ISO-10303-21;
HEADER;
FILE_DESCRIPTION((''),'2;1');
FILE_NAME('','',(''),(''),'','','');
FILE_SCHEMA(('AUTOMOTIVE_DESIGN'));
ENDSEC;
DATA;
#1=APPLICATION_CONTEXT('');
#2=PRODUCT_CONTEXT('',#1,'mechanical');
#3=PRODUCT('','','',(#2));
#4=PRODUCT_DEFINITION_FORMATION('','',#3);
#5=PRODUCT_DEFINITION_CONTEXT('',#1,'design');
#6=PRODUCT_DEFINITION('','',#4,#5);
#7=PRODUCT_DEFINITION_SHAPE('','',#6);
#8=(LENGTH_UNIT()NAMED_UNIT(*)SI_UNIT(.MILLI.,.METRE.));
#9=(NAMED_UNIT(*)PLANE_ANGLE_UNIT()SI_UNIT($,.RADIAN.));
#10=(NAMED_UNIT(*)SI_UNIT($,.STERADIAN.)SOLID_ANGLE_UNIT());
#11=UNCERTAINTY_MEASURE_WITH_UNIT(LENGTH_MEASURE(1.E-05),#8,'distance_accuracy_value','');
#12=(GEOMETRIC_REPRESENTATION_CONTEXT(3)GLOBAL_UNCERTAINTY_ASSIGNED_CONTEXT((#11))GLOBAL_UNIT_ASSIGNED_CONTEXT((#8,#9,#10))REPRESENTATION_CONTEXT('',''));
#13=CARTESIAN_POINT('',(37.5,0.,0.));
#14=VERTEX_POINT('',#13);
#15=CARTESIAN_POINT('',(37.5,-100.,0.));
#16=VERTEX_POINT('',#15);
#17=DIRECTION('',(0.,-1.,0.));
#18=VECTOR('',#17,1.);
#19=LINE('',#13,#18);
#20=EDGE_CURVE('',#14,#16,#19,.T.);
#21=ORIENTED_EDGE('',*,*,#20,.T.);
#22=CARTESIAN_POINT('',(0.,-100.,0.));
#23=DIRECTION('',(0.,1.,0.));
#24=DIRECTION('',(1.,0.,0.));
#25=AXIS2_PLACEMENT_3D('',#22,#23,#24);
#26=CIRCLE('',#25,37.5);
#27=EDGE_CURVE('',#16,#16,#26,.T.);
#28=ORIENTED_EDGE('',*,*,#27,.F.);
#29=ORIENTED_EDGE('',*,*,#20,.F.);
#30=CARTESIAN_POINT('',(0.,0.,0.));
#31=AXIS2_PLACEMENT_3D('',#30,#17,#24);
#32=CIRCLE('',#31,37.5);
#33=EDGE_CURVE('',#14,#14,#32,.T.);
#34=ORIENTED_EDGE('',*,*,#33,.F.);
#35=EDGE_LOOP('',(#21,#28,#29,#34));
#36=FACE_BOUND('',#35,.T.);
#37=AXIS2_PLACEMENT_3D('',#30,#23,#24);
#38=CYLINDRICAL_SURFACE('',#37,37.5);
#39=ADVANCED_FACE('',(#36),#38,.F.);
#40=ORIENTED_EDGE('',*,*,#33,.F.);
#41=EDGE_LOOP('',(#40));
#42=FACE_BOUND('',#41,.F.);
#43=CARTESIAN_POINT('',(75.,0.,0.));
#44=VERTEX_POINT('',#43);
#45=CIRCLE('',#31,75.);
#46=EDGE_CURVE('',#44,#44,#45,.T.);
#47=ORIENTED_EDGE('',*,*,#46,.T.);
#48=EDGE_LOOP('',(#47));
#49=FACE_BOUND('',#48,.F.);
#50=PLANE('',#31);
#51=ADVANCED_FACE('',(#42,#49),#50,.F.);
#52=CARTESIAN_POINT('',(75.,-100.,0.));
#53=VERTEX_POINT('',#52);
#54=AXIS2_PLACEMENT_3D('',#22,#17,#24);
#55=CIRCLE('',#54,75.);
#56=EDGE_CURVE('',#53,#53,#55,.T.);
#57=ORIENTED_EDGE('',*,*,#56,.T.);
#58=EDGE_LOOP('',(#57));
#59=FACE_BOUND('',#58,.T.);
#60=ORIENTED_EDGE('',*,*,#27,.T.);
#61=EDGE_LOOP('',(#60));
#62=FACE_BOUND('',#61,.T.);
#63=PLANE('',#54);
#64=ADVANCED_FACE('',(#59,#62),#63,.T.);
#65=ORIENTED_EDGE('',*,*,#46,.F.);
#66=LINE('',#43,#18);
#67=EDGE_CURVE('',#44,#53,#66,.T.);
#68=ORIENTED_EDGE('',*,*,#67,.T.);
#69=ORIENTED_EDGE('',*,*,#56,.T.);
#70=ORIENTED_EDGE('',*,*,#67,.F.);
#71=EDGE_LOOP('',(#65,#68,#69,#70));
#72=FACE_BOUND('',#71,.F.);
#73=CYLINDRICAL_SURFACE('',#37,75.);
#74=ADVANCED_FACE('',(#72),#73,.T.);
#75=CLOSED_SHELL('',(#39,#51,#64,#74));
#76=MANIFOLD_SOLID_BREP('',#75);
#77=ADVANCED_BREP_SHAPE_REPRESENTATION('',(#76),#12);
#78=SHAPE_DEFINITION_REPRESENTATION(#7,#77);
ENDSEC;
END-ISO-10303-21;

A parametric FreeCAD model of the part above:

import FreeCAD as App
import Part
import Sketcher
Q = App.Units.Quantity

doc = App.newDocument("Part")
params = doc.addObject("Spreadsheet::Sheet", "Params")
for row, (alias, value) in enumerate([
    ("sketch1_diameter", "150 mm"),
    ("pad1_length", "100 mm"),
    ("sketch2_diameter", "75 mm"),
], start=1):
    params.set(f"A{row}", alias)
    params.set(f"B{row}", "=" + value)
    params.setAlias(f"B{row}", alias)

body = doc.addObject("PartDesign::Body", "Body")

sketch1 = doc.addObject("Sketcher::SketchObject", "Sketch")
body.addObject(sketch1)
sketch1.AttachmentSupport = (doc.XZ_Plane, [""])
sketch1.MapMode = "FlatFace"
sketch1.addGeometry(Part.Circle(App.Vector(0, 0, 0), App.Vector(0, 0, 1), 75), False)
sketch1.addConstraint([
    Sketcher.Constraint("Coincident", 0, 3, -1, 1),
    Sketcher.Constraint("Diameter", 0, Q("150 mm")),
])
sketch1.setExpression("Constraints[1]", "Params.sketch1_diameter")
pad1 = doc.addObject("PartDesign::Pad", "Pad")
body.addObject(pad1)
pad1.Profile = sketch1
pad1.setExpression("Length", "Params.pad1_length")

sketch2 = doc.addObject("Sketcher::SketchObject", "Sketch001")
body.addObject(sketch2)
sketch2.AttachmentSupport = (doc.XZ_Plane, [""])
sketch2.MapMode = "FlatFace"
sketch2.addGeometry(Part.Circle(App.Vector(0, 0, 0), App.Vector(0, 0, 1), 38), False)
sketch2.addConstraint([
    Sketcher.Constraint("Coincident", 0, 3, -1, 1),
    Sketcher.Constraint("Diameter", 0, Q("75 mm")),
])
sketch2.setExpression("Constraints[1]", "Params.sketch2_diameter")
pocket1 = doc.addObject("PartDesign::Pocket", "Pocket")
body.addObject(pocket1)
pocket1.Profile = sketch2
pocket1.Type = "ThroughAll"
pocket1.Reversed = True

doc.recompute()
